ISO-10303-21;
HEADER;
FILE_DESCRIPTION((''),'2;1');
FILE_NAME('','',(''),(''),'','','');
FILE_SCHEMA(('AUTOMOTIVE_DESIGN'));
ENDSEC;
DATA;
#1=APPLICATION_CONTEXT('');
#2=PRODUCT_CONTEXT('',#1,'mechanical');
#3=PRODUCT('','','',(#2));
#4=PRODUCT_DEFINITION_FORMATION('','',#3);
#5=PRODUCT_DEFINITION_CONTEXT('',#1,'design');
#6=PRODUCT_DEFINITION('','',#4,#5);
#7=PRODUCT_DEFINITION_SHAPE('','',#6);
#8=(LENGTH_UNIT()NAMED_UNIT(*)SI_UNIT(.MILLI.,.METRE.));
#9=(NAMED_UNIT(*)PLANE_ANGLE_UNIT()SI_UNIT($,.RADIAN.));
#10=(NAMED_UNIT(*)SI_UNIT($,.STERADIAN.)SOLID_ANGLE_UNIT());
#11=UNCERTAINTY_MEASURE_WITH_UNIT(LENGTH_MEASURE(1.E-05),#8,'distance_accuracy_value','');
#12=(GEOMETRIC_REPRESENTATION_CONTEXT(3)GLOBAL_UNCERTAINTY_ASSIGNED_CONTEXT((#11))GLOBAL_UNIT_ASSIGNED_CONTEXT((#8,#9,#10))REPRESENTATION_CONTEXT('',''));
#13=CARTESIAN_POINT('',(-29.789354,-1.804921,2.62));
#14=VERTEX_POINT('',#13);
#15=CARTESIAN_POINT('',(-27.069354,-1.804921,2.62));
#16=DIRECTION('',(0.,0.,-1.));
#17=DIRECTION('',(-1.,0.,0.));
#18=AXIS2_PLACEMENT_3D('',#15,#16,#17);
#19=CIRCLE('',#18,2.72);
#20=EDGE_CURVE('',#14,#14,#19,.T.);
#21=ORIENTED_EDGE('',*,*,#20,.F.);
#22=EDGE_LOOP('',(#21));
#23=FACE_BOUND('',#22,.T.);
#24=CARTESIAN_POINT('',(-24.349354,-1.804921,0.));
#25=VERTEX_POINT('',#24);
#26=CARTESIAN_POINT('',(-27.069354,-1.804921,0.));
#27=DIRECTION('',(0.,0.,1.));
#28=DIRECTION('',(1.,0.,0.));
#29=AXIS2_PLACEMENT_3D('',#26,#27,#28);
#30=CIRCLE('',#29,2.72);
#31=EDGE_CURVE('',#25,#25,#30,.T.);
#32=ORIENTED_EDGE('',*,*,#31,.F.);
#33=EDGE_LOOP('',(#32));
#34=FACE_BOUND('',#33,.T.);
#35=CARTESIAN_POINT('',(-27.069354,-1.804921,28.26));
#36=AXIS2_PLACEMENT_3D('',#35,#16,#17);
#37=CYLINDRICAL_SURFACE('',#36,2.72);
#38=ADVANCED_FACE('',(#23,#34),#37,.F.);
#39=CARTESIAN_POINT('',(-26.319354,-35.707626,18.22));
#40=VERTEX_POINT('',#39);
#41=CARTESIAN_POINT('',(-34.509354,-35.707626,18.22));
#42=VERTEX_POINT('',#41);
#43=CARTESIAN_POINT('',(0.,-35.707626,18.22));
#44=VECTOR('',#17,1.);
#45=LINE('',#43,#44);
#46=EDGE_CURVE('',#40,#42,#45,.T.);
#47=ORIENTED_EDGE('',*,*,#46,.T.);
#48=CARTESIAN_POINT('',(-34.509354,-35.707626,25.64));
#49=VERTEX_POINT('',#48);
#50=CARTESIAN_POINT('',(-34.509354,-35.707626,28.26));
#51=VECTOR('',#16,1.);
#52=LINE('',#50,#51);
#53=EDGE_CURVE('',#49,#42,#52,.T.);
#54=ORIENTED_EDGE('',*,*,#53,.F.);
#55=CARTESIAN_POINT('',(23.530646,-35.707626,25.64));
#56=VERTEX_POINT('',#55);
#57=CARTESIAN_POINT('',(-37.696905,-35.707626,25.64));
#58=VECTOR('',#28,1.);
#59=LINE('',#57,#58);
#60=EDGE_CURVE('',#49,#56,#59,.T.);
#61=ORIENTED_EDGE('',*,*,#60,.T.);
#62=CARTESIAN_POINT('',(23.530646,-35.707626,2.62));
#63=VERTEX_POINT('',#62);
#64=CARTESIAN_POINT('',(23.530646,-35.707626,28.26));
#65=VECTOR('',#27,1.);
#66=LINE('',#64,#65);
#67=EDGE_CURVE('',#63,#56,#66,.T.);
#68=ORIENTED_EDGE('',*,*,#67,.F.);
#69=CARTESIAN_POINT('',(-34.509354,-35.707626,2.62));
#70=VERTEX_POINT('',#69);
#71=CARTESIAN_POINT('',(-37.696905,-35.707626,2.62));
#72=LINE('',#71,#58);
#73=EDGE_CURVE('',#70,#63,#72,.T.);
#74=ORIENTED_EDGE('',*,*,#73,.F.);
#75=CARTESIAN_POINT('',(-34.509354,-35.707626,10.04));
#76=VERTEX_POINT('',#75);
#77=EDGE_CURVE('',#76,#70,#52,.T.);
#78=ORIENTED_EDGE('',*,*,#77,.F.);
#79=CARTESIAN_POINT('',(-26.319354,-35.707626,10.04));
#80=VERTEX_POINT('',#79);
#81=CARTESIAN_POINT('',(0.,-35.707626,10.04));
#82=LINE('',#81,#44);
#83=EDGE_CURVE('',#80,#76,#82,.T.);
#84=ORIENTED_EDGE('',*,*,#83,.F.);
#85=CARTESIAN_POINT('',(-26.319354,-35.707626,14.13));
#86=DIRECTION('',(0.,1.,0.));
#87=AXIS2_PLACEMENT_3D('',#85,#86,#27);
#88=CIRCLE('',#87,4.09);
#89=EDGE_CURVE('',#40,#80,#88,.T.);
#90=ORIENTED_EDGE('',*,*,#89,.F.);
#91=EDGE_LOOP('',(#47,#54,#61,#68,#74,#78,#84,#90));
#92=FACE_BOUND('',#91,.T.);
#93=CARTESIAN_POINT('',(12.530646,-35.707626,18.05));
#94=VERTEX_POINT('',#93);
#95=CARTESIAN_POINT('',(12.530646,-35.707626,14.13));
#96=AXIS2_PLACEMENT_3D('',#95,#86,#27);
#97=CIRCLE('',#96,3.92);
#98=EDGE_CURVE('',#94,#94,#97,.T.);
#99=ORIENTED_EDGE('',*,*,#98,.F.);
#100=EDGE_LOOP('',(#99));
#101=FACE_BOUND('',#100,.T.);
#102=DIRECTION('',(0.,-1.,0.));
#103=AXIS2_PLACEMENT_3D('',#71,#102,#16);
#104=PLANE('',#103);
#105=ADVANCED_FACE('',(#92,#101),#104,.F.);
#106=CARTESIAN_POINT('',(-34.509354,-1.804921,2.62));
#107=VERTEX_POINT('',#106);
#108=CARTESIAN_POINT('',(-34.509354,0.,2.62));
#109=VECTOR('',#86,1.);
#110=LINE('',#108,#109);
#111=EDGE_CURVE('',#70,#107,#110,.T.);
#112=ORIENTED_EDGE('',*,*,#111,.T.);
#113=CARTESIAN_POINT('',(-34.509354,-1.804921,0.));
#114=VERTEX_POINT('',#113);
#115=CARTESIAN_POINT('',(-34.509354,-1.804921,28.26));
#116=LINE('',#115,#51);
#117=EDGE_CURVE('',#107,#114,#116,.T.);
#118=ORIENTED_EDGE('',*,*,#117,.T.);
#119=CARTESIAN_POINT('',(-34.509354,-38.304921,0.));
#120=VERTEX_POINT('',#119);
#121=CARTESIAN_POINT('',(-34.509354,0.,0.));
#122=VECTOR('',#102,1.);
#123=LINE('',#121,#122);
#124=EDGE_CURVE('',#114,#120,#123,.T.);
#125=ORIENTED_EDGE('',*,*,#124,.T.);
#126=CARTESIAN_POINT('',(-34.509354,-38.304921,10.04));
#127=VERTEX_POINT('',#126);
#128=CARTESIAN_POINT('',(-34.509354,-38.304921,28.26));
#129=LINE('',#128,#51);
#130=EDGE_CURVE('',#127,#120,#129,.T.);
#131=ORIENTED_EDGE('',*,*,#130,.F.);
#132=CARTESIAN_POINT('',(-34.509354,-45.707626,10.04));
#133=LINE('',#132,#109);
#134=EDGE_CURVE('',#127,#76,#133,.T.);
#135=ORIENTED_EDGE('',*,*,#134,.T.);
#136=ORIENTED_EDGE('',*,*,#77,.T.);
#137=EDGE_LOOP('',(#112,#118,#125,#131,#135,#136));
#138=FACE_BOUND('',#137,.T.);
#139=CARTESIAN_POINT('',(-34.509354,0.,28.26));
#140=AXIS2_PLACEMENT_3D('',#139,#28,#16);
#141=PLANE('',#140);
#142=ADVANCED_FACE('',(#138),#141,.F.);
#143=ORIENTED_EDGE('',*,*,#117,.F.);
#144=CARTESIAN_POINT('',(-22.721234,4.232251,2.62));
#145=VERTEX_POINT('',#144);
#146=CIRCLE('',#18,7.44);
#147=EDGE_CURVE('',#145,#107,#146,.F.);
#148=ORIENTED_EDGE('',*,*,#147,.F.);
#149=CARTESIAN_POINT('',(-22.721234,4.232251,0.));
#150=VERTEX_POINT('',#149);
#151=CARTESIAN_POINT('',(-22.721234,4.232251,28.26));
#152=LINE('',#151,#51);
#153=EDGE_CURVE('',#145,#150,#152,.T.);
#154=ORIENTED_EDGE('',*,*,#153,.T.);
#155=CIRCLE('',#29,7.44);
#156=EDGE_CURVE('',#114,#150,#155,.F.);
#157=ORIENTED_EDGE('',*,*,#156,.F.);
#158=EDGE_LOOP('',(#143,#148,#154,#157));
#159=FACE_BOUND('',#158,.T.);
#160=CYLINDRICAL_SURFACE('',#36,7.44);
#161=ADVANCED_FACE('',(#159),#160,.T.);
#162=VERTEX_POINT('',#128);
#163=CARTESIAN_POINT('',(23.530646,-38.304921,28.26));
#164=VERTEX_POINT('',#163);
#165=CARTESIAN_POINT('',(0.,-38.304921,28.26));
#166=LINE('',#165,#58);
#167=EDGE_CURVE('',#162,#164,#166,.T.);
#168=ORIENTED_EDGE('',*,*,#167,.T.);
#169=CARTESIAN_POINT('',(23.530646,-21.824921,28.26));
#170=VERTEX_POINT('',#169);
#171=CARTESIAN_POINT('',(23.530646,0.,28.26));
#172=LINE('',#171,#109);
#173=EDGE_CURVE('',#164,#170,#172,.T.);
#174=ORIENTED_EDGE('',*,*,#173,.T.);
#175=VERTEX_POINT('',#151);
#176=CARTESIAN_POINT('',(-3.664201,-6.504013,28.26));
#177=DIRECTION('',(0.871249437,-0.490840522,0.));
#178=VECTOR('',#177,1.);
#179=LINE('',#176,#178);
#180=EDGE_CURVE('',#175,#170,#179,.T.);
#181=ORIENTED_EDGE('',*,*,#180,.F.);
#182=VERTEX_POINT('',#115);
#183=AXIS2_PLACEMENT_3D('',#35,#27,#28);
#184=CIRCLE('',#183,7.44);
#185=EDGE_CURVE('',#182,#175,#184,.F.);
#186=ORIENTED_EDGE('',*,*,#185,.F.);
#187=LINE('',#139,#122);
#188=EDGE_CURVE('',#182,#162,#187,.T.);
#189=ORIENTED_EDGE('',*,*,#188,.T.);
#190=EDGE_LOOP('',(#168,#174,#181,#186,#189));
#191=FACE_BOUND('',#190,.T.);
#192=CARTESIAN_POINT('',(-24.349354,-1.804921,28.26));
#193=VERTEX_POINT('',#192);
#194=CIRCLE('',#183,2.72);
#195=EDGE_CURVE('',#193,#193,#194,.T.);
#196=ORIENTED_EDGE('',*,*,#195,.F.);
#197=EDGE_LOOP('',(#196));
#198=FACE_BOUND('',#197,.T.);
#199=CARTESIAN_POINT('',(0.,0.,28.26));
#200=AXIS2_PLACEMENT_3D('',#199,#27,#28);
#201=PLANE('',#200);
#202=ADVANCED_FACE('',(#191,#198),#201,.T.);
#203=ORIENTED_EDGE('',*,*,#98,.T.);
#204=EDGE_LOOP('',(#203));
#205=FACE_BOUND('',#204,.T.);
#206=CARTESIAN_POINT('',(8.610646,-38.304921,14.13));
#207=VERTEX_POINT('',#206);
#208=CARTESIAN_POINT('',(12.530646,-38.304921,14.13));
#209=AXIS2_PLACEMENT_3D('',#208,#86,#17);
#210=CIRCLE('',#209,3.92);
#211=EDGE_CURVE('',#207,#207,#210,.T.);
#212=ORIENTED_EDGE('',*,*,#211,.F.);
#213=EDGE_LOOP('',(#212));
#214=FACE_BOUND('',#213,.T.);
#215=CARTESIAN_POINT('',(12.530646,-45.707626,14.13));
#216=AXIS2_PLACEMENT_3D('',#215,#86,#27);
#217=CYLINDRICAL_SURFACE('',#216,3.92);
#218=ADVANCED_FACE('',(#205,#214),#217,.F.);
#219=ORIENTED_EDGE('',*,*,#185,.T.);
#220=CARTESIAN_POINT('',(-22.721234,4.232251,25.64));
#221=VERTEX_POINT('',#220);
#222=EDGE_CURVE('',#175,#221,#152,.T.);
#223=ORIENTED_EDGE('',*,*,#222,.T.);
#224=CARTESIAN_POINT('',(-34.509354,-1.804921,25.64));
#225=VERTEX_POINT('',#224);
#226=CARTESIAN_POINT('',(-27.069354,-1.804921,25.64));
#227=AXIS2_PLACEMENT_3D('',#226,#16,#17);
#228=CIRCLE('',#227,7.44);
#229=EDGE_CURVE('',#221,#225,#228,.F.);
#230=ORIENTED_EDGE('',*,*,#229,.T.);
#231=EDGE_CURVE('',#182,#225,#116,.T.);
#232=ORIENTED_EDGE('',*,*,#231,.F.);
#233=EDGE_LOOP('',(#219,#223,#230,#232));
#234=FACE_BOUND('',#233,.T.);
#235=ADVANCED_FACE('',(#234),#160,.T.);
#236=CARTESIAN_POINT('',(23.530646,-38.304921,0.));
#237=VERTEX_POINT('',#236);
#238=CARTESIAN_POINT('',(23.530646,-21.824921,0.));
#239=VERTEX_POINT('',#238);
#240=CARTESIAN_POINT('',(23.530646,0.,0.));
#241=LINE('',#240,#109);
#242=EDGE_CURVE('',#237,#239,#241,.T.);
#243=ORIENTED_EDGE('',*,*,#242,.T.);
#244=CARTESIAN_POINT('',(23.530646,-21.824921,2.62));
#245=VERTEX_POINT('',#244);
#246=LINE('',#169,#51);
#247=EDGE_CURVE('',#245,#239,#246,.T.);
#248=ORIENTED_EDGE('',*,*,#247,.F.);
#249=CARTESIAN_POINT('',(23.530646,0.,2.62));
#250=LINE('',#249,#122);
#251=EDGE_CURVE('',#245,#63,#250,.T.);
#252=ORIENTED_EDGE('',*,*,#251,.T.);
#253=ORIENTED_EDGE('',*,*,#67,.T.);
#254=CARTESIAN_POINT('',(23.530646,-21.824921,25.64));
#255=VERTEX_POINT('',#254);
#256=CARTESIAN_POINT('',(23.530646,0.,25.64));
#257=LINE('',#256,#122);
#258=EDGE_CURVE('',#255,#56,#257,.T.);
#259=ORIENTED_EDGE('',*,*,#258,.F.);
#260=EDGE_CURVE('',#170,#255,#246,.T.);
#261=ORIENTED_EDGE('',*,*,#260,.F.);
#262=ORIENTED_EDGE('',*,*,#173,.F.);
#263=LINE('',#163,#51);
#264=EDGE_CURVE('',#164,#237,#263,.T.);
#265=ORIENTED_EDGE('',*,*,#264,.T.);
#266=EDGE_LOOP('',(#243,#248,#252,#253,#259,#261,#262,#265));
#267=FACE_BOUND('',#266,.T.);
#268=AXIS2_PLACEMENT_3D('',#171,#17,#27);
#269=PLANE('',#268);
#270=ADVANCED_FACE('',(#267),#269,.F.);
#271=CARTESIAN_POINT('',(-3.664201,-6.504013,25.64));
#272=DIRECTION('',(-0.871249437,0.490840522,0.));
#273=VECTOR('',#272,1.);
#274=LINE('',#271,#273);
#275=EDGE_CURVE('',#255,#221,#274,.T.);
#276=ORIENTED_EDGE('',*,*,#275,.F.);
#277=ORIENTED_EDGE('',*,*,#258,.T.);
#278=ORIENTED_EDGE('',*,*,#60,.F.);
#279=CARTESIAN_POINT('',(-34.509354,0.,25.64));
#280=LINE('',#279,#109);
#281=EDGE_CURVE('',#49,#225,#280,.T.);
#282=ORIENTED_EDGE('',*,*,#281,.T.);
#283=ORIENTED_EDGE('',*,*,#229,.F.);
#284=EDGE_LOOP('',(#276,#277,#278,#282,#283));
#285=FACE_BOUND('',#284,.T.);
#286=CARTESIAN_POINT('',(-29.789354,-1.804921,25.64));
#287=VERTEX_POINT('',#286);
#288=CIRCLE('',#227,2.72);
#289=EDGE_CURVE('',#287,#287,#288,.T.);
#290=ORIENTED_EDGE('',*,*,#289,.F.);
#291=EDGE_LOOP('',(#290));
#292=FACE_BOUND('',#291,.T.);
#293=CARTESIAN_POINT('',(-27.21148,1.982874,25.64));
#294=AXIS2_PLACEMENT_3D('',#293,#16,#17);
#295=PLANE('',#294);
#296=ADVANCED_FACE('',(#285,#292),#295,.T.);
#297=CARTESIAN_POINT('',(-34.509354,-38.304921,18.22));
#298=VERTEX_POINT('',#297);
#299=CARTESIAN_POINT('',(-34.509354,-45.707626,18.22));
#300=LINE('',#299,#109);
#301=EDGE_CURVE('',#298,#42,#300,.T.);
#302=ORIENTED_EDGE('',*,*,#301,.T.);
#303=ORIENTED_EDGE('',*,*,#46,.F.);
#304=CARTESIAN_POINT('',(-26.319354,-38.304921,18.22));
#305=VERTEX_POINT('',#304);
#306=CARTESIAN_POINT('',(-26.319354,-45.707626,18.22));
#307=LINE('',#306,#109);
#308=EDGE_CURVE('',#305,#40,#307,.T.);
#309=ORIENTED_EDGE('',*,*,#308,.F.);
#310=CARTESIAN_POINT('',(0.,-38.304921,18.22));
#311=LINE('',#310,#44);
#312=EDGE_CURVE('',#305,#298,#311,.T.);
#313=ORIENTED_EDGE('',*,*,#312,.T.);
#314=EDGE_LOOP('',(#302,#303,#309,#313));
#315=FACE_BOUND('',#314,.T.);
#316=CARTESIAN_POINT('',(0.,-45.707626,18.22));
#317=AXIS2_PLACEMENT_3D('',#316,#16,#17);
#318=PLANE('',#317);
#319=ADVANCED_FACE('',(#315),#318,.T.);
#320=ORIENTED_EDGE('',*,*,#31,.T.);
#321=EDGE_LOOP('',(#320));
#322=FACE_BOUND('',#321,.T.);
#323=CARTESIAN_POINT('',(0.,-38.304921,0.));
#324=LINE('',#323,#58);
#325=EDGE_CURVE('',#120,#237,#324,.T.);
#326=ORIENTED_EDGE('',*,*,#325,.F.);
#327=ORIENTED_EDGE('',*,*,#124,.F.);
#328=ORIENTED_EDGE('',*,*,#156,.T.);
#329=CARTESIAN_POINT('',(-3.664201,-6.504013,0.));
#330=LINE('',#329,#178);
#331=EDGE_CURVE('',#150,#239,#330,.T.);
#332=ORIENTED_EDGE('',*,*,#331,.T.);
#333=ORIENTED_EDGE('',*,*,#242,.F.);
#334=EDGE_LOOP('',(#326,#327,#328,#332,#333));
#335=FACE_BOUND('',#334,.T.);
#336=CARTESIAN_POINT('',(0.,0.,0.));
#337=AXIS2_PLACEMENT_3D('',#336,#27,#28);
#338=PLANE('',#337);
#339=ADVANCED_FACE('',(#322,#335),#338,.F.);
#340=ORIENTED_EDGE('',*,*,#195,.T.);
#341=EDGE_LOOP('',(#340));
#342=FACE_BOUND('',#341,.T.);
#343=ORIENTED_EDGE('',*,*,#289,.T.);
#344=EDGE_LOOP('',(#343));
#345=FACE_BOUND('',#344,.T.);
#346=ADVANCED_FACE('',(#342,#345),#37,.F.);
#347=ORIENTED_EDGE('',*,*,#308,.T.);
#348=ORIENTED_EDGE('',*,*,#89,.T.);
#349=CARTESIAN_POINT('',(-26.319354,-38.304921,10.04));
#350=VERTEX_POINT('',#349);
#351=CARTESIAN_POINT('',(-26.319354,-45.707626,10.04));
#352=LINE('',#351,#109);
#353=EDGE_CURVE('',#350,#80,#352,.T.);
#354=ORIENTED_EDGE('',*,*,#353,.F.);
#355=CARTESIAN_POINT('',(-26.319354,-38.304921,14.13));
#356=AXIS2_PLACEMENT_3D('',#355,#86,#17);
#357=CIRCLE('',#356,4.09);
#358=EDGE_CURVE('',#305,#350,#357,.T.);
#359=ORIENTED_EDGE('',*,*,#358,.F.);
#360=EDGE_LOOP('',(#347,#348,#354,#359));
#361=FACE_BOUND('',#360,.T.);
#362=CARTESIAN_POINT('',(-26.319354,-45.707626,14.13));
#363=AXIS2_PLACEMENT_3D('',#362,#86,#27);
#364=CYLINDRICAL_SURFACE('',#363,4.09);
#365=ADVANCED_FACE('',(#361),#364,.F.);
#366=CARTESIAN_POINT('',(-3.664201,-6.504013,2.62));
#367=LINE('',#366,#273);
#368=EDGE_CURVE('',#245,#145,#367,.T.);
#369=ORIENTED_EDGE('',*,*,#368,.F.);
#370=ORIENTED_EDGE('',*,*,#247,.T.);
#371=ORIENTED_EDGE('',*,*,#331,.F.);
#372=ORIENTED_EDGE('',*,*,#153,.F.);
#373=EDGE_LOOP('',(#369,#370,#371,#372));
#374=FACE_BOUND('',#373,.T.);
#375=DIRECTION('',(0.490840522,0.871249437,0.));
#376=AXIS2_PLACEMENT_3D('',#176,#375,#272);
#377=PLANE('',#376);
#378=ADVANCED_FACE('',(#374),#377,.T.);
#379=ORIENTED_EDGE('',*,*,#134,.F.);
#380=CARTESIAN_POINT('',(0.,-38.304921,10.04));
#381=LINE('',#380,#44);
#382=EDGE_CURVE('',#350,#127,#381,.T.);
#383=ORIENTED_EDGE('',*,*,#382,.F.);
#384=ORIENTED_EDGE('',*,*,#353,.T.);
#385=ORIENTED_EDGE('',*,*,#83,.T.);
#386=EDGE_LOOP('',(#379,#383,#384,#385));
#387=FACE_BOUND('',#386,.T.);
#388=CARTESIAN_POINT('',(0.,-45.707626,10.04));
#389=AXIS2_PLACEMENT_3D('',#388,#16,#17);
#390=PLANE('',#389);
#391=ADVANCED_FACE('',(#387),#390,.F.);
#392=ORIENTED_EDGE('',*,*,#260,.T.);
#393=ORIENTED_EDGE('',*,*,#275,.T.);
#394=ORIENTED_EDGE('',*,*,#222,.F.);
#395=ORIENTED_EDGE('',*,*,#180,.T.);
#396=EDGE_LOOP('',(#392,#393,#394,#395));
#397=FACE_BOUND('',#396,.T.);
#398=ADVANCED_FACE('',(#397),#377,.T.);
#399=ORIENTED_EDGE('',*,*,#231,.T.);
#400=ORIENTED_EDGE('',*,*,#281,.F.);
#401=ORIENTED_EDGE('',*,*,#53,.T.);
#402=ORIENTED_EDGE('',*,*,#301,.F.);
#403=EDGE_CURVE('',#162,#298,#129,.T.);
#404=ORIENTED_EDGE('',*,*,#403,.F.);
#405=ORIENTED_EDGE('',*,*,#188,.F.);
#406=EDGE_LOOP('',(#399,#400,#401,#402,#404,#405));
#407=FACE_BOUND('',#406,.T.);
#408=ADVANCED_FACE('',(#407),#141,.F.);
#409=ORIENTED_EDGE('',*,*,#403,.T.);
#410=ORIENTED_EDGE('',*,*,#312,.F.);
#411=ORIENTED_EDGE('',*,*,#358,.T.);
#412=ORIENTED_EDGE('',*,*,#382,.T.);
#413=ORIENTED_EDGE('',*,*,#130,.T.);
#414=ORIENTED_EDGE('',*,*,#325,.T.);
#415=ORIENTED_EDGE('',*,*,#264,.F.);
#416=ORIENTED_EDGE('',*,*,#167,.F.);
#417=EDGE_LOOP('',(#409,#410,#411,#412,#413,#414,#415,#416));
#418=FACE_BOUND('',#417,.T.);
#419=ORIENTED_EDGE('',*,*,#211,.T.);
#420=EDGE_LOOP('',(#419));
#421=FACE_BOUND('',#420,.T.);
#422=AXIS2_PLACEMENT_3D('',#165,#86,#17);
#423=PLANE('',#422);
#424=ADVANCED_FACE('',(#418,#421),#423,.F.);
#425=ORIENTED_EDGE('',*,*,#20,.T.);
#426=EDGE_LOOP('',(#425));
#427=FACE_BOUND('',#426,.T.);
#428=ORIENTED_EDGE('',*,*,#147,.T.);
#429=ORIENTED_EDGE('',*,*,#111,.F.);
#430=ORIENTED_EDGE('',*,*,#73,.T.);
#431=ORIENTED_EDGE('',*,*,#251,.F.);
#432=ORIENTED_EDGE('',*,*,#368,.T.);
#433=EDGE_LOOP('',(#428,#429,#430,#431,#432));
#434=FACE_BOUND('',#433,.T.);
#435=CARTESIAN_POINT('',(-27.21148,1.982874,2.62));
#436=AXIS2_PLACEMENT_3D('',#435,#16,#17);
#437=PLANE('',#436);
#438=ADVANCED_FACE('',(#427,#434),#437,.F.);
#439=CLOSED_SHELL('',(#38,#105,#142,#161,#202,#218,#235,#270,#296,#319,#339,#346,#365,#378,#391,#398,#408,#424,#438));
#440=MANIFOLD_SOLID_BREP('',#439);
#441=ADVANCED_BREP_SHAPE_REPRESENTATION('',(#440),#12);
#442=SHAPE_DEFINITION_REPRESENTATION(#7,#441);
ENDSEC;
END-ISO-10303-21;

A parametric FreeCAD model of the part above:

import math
import FreeCAD as App
import Part
import Sketcher
from FreeCAD import Vector
Q = App.Units.Quantity

doc = App.newDocument("Part")
body = doc.addObject("PartDesign::Body", "Body")

sketch1 = doc.addObject("Sketcher::SketchObject", "Sketch")
body.addObject(sketch1)
sketch1.AttachmentSupport = (doc.XY_Plane, [""])
sketch1.MapMode = "FlatFace"
sketch1.addGeometry([
    Part.LineSegment(Vector(-34.509354, -1.804921, 0), Vector(-34.509354, -38.304921, 0)),
    Part.LineSegment(Vector(-34.509354, -38.304921, 0), Vector(23.530646, -38.304921, 0)),
    Part.LineSegment(Vector(23.530646, -38.304921, 0), Vector(23.530646, -21.824921, 0)),
    Part.LineSegment(Vector(23.530646, -21.824921, 0), Vector(-22.721234, 4.232251, 0)),
    Part.ArcOfCircle(Part.Circle(Vector(-27.069354, -1.804921, 0), Vector(0, 0, 1), 7.44), math.radians(54.23764), math.radians(180)),
    Part.Circle(Vector(-27.069354, -1.804921, 0), Vector(0, 0, 1), 2.72),
], False)
sketch1.addConstraint([
    Sketcher.Constraint("Coincident", 0, 2, 1, 1),
    Sketcher.Constraint("Coincident", 1, 2, 2, 1),
    Sketcher.Constraint("Coincident", 2, 2, 3, 1),
    Sketcher.Constraint("Coincident", 3, 2, 4, 1),
    Sketcher.Constraint("Tangent", 4, 2, 0, 1),
    Sketcher.Constraint("Vertical", 0),
    Sketcher.Constraint("Horizontal", 1),
    Sketcher.Constraint("Vertical", 2),
    Sketcher.Constraint("Coincident", 5, 3, 4, 3),
    Sketcher.Constraint("Diameter", 5, Q("5.44 mm")),
    Sketcher.Constraint("Radius", 4, Q("7.44 mm")),
    Sketcher.Constraint("DistanceY", 0, 2, 0, 1, Q("36.5 mm")),
    Sketcher.Constraint("DistanceX", 1, 1, 1, 2, Q("58.04 mm")),
    Sketcher.Constraint("DistanceY", 2, 1, 2, 2, Q("16.48 mm")),
    Sketcher.Constraint("Distance", 3, Q("53.086841 mm")),
    Sketcher.Constraint("DistanceY", 4, 3, -1, 1, Q("1.804921 mm")),
    Sketcher.Constraint("DistanceX", 4, 3, -1, 1, Q("27.069354 mm")),
])
pad1 = doc.addObject("PartDesign::Pad", "Pad")
body.addObject(pad1)
pad1.Profile = sketch1
pad1.Length = 28.26

sketch2 = doc.addObject("Sketcher::SketchObject", "Sketch001")
body.addObject(sketch2)
sketch2.AttachmentSupport = (doc.XY_Plane, [""])
sketch2.MapMode = "FlatFace"
sketch2.AttachmentOffset = App.Placement(Vector(0, 0, 14.13), App.Rotation())
sketch2.addGeometry([
    Part.LineSegment(Vector(-35.956298, -0.339764, 0), Vector(-37.696905, -35.707626, 0)),
    Part.LineSegment(Vector(-37.696905, -35.707626, 0), Vector(23.935381, -35.707626, 0)),
    Part.LineSegment(Vector(23.935381, -35.707626, 0), Vector(23.935381, -19.57988, 0)),
    Part.LineSegment(Vector(23.935381, -19.57988, 0), Vector(-18.750113, 5.18783, 0)),
    Part.ArcOfCircle(Part.Circle(Vector(-27.21148, 1.982874, 0), Vector(0, 0, 1), 9.04801), math.radians(20.74544), math.radians(194.874435)),
], False)
sketch2.addConstraint([
    Sketcher.Constraint("Coincident", 0, 2, 1, 1),
    Sketcher.Constraint("Coincident", 1, 2, 2, 1),
    Sketcher.Constraint("Coincident", 2, 2, 3, 1),
    Sketcher.Constraint("Coincident", 3, 2, 4, 1),
    Sketcher.Constraint("Coincident", 4, 2, 0, 1),
    Sketcher.Constraint("Horizontal", 1),
    Sketcher.Constraint("Vertical", 2),
    Sketcher.Constraint("Radius", 4, Q("9.04801 mm")),
    Sketcher.Constraint("DistanceY", 0, 2, 4, 3, Q("37.6905 mm")),
    Sketcher.Constraint("Distance", 3, Q("49.350692 mm")),
    Sketcher.Constraint("DistanceX", 1, 1, 1, 2, Q("61.632286 mm")),
    Sketcher.Constraint("DistanceY", 2, 1, 2, 2, Q("16.127746 mm")),
    Sketcher.Constraint("DistanceX", 4, 3, -1, 1, Q("27.21148 mm")),
    Sketcher.Constraint("DistanceX", -1, 1, 1, 2, Q("23.935381 mm")),
    Sketcher.Constraint("DistanceY", 2, 2, -1, 1, Q("19.57988 mm")),
    Sketcher.Constraint("DistanceY", 4, 2, 4, 3, Q("2.322638 mm")),
])
pocket1 = doc.addObject("PartDesign::Pocket", "Pocket")
body.addObject(pocket1)
pocket1.Profile = sketch2
pocket1.Length = 23.02
pocket1.Midplane = True

sketch3 = doc.addObject("Sketcher::SketchObject", "Sketch002")
body.addObject(sketch3)
sketch3.AttachmentSupport = (doc.XZ_Plane, [""])
sketch3.MapMode = "FlatFace"
sketch3.AttachmentOffset = App.Placement(Vector(0, 0, 35.707626), App.Rotation())
sketch3.addGeometry([
    Part.Circle(Vector(12.530646, 14.13, 0), Vector(0, 0, 1), 3.92),
    Part.ArcOfCircle(Part.Circle(Vector(-26.319354, 14.13, 0), Vector(0, 0, 1), 4.09), math.radians(-90), math.radians(90)),
    Part.LineSegment(Vector(-26.319354, 10.04, 0), Vector(-34.509354, 10.04, 0)),
    Part.LineSegment(Vector(-34.509354, 10.04, 0), Vector(-34.509354, 18.22, 0)),
    Part.LineSegment(Vector(-34.509354, 18.22, 0), Vector(-26.319354, 18.22, 0)),
], False)
sketch3.addConstraint([
    Sketcher.Constraint("Tangent", 1, 1, 2, 1),
    Sketcher.Constraint("Coincident", 2, 2, 3, 1),
    Sketcher.Constraint("Coincident", 3, 2, 4, 1),
    Sketcher.Constraint("Tangent", 4, 2, 1, 2),
    Sketcher.Constraint("Horizontal", 2),
    Sketcher.Constraint("Vertical", 3),
    Sketcher.Constraint("Horizontal", 4),
    Sketcher.Constraint("Horizontal", 0, 3, 1, 3),
    Sketcher.Constraint("Diameter", 0, Q("7.84 mm")),
    Sketcher.Constraint("Radius", 1, Q("4.09 mm")),
    Sketcher.Constraint("DistanceX", 2, 2, 2, 1, Q("8.19 mm")),
    Sketcher.Constraint("DistanceY", -1, 1, 0, 3, Q("14.13 mm")),
    Sketcher.Constraint("DistanceX", 1, 3, 0, 3, Q("38.85 mm")),
    Sketcher.Constraint("DistanceX", -1, 1, 0, 3, Q("12.530646 mm")),
])
pocket2 = doc.addObject("PartDesign::Pocket", "Pocket001")
body.addObject(pocket2)
pocket2.Profile = sketch3
pocket2.Length = 10
pocket2.Reversed = True

doc.recompute()
